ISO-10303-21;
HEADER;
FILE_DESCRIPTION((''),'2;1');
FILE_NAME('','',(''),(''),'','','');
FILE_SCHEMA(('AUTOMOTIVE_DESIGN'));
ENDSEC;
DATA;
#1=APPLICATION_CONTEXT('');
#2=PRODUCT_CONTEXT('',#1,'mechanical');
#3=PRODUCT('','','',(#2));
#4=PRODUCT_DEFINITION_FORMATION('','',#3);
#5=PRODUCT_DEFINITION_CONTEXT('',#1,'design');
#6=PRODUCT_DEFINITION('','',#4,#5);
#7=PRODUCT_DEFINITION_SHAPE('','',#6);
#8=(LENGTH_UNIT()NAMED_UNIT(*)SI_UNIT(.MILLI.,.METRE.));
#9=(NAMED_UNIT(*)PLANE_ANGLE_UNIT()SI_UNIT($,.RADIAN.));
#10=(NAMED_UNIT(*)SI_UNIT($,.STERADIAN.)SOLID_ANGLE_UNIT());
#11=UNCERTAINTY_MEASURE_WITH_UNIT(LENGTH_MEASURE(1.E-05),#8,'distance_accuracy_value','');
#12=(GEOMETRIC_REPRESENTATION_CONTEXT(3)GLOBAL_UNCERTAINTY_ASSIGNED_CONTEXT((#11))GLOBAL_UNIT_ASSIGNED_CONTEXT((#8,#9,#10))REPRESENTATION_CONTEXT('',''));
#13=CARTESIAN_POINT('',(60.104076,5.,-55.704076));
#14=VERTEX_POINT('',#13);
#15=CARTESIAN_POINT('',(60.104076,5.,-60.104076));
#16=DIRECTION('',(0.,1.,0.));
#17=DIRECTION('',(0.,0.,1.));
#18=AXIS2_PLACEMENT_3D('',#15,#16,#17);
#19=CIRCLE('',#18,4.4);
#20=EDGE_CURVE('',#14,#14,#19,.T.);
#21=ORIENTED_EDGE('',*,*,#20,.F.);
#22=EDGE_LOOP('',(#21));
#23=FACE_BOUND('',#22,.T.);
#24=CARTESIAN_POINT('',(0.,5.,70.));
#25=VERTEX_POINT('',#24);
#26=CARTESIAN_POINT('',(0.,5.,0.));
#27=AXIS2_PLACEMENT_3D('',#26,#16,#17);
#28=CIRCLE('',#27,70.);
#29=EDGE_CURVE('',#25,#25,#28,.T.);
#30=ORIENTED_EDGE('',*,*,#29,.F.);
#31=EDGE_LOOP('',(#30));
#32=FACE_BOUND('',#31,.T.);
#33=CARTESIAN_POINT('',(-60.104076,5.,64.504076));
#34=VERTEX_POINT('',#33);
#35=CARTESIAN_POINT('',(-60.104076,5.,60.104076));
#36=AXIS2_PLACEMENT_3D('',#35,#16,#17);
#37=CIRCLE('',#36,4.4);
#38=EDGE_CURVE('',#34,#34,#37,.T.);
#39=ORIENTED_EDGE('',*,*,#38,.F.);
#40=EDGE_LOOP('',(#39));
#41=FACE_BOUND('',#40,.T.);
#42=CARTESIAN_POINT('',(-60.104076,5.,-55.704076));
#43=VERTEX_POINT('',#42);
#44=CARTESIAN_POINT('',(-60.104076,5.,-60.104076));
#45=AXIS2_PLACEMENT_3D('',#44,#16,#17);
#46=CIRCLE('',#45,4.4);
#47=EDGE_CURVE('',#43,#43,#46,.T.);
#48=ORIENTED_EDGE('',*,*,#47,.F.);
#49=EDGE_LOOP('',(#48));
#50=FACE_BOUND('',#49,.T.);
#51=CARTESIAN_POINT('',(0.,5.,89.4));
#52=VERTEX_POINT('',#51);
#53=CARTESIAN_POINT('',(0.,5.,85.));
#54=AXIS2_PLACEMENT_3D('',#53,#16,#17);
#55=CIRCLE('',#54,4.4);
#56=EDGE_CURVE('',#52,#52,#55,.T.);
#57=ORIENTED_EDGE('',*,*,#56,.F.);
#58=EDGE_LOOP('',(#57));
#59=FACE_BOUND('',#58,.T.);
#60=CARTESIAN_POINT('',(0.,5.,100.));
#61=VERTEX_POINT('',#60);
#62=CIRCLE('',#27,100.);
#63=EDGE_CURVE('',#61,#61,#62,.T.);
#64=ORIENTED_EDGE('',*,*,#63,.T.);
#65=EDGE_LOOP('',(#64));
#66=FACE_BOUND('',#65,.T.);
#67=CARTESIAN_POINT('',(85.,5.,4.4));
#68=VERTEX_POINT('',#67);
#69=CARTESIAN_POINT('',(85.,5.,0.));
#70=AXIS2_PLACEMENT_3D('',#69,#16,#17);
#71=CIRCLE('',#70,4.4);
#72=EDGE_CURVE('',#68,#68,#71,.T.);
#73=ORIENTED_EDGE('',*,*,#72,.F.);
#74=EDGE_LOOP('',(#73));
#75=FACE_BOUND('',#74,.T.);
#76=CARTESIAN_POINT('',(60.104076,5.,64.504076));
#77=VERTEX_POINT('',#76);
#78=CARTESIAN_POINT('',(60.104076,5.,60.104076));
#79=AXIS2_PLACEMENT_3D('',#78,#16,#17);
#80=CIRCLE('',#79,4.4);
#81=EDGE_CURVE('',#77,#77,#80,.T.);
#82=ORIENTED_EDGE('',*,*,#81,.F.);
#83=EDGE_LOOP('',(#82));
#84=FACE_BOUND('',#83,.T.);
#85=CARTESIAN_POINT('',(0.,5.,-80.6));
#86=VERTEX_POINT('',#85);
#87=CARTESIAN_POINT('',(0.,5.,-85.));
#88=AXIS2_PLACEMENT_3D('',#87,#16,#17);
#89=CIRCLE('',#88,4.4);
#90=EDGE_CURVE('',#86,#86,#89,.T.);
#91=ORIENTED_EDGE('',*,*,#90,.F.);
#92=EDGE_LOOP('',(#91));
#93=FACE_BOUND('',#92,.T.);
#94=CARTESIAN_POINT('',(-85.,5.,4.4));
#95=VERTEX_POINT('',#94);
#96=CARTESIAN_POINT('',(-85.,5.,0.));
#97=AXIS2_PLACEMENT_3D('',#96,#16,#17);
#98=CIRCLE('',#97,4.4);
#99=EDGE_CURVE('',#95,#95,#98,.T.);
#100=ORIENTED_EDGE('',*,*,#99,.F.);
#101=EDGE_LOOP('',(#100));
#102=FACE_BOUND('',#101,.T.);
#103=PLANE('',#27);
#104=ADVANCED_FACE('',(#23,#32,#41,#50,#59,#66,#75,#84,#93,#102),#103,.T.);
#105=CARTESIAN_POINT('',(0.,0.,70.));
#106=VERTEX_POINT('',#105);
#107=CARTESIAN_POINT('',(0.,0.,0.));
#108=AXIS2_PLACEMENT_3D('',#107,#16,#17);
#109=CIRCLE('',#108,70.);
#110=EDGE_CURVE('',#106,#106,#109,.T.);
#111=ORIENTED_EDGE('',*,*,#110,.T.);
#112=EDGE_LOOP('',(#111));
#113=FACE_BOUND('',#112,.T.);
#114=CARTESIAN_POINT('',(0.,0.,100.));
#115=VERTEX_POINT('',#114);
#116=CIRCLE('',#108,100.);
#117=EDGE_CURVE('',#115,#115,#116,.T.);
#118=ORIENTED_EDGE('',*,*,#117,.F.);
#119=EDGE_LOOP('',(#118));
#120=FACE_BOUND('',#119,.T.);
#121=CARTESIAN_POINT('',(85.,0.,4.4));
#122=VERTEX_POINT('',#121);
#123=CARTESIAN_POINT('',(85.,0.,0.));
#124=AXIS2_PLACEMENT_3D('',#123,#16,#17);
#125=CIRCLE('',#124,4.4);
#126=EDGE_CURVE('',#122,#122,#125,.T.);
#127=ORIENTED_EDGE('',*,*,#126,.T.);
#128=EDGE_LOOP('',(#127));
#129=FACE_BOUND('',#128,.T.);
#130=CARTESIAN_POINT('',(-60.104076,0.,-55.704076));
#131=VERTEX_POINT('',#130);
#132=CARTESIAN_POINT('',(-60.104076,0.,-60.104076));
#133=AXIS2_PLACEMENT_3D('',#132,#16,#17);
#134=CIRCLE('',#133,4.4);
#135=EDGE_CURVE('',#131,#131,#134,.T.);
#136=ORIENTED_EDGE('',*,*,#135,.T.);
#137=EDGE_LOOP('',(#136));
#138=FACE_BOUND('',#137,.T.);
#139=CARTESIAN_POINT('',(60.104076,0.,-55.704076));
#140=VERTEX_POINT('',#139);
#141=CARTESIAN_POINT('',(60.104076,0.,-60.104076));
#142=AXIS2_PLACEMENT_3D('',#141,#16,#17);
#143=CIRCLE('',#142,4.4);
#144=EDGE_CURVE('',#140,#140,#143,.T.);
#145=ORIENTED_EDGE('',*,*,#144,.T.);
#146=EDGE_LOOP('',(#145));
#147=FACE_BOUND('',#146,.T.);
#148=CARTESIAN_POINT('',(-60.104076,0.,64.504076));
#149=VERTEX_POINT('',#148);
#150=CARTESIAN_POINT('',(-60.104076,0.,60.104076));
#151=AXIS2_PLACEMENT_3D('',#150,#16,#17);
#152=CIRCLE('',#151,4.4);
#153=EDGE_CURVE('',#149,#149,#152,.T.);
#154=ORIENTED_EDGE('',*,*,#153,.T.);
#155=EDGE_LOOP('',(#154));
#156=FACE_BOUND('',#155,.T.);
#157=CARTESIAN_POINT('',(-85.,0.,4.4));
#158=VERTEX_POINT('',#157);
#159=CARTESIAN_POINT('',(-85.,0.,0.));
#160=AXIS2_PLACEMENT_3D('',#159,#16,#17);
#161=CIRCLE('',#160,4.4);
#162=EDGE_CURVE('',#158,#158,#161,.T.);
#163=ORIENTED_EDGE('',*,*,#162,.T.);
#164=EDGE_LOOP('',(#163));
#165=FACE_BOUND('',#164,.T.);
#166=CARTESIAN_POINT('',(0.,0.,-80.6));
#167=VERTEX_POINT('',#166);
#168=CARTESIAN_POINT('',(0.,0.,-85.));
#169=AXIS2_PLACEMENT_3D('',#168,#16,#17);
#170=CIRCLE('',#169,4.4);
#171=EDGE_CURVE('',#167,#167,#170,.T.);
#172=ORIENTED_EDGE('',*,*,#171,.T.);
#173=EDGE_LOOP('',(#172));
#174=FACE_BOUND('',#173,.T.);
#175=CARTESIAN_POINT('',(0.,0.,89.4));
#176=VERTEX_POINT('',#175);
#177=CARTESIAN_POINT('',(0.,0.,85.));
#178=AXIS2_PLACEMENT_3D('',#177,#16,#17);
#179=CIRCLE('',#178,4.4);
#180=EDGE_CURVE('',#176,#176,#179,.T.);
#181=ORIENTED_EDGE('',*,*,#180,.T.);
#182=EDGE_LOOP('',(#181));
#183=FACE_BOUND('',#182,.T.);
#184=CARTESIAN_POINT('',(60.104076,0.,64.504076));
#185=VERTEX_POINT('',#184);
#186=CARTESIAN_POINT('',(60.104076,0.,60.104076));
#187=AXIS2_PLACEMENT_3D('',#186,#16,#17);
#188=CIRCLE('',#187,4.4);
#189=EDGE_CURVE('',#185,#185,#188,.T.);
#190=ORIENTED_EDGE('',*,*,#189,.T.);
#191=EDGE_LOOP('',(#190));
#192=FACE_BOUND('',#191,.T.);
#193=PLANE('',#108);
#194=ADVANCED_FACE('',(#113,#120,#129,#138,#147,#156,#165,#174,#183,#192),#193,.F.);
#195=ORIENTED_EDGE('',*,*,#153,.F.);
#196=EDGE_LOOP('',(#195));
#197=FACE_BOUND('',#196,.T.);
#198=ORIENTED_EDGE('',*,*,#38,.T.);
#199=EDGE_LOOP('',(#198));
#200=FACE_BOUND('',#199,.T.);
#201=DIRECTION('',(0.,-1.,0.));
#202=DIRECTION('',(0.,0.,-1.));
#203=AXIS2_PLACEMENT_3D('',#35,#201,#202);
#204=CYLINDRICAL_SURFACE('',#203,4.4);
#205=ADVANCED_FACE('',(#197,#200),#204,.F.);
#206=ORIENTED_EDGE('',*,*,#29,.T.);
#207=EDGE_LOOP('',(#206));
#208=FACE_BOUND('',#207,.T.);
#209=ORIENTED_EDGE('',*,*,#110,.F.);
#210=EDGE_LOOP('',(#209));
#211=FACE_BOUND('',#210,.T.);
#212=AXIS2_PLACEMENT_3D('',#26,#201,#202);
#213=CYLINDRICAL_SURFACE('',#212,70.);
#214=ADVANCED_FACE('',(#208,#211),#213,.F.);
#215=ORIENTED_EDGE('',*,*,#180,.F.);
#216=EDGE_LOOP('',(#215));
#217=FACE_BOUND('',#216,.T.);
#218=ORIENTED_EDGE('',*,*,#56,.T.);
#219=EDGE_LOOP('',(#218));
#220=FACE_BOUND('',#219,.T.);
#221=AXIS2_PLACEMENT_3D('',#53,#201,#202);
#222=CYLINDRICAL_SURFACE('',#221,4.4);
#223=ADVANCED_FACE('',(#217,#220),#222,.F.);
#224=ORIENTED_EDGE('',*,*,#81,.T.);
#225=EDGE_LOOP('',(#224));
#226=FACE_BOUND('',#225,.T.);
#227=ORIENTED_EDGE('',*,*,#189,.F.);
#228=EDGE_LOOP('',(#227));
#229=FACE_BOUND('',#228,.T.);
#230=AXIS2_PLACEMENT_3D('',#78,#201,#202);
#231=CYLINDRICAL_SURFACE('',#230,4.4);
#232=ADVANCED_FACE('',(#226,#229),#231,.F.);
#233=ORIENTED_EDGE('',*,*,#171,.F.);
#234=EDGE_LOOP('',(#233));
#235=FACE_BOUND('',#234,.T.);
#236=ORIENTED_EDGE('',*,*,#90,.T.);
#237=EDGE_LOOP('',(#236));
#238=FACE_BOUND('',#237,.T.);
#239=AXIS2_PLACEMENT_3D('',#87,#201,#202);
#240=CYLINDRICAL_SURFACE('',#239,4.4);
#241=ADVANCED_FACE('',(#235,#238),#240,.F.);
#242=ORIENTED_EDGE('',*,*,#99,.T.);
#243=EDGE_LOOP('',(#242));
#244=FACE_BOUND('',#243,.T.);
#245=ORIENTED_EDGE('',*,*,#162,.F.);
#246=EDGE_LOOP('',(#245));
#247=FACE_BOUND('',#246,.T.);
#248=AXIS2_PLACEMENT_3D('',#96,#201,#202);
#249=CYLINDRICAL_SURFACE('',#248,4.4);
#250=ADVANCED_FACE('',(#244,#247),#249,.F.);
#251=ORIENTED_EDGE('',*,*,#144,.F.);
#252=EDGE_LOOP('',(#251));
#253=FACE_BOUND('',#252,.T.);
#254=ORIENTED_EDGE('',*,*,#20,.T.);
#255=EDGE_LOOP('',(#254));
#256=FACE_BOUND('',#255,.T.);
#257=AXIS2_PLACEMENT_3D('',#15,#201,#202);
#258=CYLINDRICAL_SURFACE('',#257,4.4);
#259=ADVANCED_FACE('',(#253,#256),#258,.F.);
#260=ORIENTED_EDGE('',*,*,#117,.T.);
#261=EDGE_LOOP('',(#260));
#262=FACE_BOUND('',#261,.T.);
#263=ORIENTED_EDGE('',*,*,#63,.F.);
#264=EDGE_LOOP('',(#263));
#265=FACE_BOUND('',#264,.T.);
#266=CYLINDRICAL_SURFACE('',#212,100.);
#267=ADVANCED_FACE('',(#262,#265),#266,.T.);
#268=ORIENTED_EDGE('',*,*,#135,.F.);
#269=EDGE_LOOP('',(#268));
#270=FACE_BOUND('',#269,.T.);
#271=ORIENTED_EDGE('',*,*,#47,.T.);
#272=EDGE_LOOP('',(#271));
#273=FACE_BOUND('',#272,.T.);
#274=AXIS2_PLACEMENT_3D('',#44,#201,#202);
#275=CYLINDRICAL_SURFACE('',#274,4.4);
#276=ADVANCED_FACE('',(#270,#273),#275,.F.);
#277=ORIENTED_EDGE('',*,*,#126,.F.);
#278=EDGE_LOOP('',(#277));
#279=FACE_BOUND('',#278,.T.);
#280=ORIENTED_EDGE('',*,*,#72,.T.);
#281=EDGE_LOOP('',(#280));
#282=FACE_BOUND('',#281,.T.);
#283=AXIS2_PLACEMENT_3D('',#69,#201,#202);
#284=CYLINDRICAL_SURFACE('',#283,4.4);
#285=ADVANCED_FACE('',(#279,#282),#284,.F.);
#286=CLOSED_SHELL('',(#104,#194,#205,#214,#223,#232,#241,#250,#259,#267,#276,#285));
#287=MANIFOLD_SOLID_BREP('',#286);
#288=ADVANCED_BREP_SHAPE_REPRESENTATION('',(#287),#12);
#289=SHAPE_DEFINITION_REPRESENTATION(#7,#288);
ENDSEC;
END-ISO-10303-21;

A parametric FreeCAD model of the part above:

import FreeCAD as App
import Part
import Sketcher

V = App.Vector
Q = App.Units.Quantity

doc = App.newDocument("Part")
body = doc.addObject("PartDesign::Body", "Body")

sketch1 = body.newObject("Sketcher::SketchObject", "Sketch")
sketch1.AttachmentSupport = (doc.getObject("XZ_Plane"), [""])
sketch1.MapMode = "FlatFace"
sketch1.addGeometry(Part.Circle(V(0, 0, 0), V(0, 0, 1), 100), False)
sketch1.addGeometry(Part.Circle(V(-60.1, -60.1, 0), V(0, 0, 1), 4.4), False)
sketch1.addGeometry(Part.Circle(V(0, -85, 0), V(0, 0, 1), 4.4), False)
sketch1.addGeometry(Part.Circle(V(-85, 0, 0), V(0, 0, 1), 4.4), False)
sketch1.addGeometry(Part.Circle(V(-60.1, 60.1, 0), V(0, 0, 1), 4.4), False)
sketch1.addGeometry(Part.Circle(V(60.1, -60.1, 0), V(0, 0, 1), 4.4), False)
sketch1.addGeometry(Part.Circle(V(85, 0, 0), V(0, 0, 1), 4.4), False)
sketch1.addGeometry(Part.Circle(V(0, 0, 0), V(0, 0, 1), 70), False)
sketch1.addGeometry(Part.Circle(V(0, 85, 0), V(0, 0, 1), 4.4), False)
sketch1.addGeometry(Part.Circle(V(60.1, 60.1, 0), V(0, 0, 1), 4.4), False)
sketch1.addConstraint(Sketcher.Constraint("Coincident", 0, 3, -1, 1))
sketch1.addConstraint(Sketcher.Constraint("Coincident", 7, 3, -1, 1))
sketch1.addConstraint(Sketcher.Constraint("Equal", 1, 2))
sketch1.addConstraint(Sketcher.Constraint("Equal", 2, 3))
sketch1.addConstraint(Sketcher.Constraint("Equal", 3, 4))
sketch1.addConstraint(Sketcher.Constraint("Equal", 4, 5))
sketch1.addConstraint(Sketcher.Constraint("Equal", 5, 6))
sketch1.addConstraint(Sketcher.Constraint("Equal", 6, 8))
sketch1.addConstraint(Sketcher.Constraint("Equal", 8, 9))
sketch1.addConstraint(Sketcher.Constraint("Symmetric", 4, 3, 5, 3, -1, 1))
sketch1.addConstraint(Sketcher.Constraint("Symmetric", 3, 3, 6, 3, -1, 1))
sketch1.addConstraint(Sketcher.Constraint("Symmetric", 2, 3, 8, 3, -1, 1))
sketch1.addConstraint(Sketcher.Constraint("Symmetric", 1, 3, 9, 3, -1, 1))
sketch1.addConstraint(Sketcher.Constraint("Symmetric", 1, 3, 5, 3, -2))
sketch1.addConstraint(Sketcher.Constraint("PointOnObject", 2, 3, -2))
sketch1.addConstraint(Sketcher.Constraint("PointOnObject", 3, 3, -1))
sketch1.addConstraint(Sketcher.Constraint("Diameter", 0, Q("200 mm")))
sketch1.addConstraint(Sketcher.Constraint("Diameter", 7, Q("140 mm")))
sketch1.addConstraint(Sketcher.Constraint("Diameter", 1, Q("8.8 mm")))
sketch1.addConstraint(Sketcher.Constraint("DistanceY", 2, 3, -1, 1, Q("85 mm")))
sketch1.addConstraint(Sketcher.Constraint("DistanceX", 3, 3, -1, 1, Q("85 mm")))
sketch1.addConstraint(Sketcher.Constraint("DistanceX", 1, 3, -1, 1, Q("60.104076 mm")))
sketch1.addConstraint(Sketcher.Constraint("DistanceY", 1, 3, -1, 1, Q("60.104076 mm")))
pad1 = body.newObject("PartDesign::Pad", "Pad")
pad1.Profile = sketch1
pad1.Length = 5
pad1.Reversed = True

doc.recompute()
